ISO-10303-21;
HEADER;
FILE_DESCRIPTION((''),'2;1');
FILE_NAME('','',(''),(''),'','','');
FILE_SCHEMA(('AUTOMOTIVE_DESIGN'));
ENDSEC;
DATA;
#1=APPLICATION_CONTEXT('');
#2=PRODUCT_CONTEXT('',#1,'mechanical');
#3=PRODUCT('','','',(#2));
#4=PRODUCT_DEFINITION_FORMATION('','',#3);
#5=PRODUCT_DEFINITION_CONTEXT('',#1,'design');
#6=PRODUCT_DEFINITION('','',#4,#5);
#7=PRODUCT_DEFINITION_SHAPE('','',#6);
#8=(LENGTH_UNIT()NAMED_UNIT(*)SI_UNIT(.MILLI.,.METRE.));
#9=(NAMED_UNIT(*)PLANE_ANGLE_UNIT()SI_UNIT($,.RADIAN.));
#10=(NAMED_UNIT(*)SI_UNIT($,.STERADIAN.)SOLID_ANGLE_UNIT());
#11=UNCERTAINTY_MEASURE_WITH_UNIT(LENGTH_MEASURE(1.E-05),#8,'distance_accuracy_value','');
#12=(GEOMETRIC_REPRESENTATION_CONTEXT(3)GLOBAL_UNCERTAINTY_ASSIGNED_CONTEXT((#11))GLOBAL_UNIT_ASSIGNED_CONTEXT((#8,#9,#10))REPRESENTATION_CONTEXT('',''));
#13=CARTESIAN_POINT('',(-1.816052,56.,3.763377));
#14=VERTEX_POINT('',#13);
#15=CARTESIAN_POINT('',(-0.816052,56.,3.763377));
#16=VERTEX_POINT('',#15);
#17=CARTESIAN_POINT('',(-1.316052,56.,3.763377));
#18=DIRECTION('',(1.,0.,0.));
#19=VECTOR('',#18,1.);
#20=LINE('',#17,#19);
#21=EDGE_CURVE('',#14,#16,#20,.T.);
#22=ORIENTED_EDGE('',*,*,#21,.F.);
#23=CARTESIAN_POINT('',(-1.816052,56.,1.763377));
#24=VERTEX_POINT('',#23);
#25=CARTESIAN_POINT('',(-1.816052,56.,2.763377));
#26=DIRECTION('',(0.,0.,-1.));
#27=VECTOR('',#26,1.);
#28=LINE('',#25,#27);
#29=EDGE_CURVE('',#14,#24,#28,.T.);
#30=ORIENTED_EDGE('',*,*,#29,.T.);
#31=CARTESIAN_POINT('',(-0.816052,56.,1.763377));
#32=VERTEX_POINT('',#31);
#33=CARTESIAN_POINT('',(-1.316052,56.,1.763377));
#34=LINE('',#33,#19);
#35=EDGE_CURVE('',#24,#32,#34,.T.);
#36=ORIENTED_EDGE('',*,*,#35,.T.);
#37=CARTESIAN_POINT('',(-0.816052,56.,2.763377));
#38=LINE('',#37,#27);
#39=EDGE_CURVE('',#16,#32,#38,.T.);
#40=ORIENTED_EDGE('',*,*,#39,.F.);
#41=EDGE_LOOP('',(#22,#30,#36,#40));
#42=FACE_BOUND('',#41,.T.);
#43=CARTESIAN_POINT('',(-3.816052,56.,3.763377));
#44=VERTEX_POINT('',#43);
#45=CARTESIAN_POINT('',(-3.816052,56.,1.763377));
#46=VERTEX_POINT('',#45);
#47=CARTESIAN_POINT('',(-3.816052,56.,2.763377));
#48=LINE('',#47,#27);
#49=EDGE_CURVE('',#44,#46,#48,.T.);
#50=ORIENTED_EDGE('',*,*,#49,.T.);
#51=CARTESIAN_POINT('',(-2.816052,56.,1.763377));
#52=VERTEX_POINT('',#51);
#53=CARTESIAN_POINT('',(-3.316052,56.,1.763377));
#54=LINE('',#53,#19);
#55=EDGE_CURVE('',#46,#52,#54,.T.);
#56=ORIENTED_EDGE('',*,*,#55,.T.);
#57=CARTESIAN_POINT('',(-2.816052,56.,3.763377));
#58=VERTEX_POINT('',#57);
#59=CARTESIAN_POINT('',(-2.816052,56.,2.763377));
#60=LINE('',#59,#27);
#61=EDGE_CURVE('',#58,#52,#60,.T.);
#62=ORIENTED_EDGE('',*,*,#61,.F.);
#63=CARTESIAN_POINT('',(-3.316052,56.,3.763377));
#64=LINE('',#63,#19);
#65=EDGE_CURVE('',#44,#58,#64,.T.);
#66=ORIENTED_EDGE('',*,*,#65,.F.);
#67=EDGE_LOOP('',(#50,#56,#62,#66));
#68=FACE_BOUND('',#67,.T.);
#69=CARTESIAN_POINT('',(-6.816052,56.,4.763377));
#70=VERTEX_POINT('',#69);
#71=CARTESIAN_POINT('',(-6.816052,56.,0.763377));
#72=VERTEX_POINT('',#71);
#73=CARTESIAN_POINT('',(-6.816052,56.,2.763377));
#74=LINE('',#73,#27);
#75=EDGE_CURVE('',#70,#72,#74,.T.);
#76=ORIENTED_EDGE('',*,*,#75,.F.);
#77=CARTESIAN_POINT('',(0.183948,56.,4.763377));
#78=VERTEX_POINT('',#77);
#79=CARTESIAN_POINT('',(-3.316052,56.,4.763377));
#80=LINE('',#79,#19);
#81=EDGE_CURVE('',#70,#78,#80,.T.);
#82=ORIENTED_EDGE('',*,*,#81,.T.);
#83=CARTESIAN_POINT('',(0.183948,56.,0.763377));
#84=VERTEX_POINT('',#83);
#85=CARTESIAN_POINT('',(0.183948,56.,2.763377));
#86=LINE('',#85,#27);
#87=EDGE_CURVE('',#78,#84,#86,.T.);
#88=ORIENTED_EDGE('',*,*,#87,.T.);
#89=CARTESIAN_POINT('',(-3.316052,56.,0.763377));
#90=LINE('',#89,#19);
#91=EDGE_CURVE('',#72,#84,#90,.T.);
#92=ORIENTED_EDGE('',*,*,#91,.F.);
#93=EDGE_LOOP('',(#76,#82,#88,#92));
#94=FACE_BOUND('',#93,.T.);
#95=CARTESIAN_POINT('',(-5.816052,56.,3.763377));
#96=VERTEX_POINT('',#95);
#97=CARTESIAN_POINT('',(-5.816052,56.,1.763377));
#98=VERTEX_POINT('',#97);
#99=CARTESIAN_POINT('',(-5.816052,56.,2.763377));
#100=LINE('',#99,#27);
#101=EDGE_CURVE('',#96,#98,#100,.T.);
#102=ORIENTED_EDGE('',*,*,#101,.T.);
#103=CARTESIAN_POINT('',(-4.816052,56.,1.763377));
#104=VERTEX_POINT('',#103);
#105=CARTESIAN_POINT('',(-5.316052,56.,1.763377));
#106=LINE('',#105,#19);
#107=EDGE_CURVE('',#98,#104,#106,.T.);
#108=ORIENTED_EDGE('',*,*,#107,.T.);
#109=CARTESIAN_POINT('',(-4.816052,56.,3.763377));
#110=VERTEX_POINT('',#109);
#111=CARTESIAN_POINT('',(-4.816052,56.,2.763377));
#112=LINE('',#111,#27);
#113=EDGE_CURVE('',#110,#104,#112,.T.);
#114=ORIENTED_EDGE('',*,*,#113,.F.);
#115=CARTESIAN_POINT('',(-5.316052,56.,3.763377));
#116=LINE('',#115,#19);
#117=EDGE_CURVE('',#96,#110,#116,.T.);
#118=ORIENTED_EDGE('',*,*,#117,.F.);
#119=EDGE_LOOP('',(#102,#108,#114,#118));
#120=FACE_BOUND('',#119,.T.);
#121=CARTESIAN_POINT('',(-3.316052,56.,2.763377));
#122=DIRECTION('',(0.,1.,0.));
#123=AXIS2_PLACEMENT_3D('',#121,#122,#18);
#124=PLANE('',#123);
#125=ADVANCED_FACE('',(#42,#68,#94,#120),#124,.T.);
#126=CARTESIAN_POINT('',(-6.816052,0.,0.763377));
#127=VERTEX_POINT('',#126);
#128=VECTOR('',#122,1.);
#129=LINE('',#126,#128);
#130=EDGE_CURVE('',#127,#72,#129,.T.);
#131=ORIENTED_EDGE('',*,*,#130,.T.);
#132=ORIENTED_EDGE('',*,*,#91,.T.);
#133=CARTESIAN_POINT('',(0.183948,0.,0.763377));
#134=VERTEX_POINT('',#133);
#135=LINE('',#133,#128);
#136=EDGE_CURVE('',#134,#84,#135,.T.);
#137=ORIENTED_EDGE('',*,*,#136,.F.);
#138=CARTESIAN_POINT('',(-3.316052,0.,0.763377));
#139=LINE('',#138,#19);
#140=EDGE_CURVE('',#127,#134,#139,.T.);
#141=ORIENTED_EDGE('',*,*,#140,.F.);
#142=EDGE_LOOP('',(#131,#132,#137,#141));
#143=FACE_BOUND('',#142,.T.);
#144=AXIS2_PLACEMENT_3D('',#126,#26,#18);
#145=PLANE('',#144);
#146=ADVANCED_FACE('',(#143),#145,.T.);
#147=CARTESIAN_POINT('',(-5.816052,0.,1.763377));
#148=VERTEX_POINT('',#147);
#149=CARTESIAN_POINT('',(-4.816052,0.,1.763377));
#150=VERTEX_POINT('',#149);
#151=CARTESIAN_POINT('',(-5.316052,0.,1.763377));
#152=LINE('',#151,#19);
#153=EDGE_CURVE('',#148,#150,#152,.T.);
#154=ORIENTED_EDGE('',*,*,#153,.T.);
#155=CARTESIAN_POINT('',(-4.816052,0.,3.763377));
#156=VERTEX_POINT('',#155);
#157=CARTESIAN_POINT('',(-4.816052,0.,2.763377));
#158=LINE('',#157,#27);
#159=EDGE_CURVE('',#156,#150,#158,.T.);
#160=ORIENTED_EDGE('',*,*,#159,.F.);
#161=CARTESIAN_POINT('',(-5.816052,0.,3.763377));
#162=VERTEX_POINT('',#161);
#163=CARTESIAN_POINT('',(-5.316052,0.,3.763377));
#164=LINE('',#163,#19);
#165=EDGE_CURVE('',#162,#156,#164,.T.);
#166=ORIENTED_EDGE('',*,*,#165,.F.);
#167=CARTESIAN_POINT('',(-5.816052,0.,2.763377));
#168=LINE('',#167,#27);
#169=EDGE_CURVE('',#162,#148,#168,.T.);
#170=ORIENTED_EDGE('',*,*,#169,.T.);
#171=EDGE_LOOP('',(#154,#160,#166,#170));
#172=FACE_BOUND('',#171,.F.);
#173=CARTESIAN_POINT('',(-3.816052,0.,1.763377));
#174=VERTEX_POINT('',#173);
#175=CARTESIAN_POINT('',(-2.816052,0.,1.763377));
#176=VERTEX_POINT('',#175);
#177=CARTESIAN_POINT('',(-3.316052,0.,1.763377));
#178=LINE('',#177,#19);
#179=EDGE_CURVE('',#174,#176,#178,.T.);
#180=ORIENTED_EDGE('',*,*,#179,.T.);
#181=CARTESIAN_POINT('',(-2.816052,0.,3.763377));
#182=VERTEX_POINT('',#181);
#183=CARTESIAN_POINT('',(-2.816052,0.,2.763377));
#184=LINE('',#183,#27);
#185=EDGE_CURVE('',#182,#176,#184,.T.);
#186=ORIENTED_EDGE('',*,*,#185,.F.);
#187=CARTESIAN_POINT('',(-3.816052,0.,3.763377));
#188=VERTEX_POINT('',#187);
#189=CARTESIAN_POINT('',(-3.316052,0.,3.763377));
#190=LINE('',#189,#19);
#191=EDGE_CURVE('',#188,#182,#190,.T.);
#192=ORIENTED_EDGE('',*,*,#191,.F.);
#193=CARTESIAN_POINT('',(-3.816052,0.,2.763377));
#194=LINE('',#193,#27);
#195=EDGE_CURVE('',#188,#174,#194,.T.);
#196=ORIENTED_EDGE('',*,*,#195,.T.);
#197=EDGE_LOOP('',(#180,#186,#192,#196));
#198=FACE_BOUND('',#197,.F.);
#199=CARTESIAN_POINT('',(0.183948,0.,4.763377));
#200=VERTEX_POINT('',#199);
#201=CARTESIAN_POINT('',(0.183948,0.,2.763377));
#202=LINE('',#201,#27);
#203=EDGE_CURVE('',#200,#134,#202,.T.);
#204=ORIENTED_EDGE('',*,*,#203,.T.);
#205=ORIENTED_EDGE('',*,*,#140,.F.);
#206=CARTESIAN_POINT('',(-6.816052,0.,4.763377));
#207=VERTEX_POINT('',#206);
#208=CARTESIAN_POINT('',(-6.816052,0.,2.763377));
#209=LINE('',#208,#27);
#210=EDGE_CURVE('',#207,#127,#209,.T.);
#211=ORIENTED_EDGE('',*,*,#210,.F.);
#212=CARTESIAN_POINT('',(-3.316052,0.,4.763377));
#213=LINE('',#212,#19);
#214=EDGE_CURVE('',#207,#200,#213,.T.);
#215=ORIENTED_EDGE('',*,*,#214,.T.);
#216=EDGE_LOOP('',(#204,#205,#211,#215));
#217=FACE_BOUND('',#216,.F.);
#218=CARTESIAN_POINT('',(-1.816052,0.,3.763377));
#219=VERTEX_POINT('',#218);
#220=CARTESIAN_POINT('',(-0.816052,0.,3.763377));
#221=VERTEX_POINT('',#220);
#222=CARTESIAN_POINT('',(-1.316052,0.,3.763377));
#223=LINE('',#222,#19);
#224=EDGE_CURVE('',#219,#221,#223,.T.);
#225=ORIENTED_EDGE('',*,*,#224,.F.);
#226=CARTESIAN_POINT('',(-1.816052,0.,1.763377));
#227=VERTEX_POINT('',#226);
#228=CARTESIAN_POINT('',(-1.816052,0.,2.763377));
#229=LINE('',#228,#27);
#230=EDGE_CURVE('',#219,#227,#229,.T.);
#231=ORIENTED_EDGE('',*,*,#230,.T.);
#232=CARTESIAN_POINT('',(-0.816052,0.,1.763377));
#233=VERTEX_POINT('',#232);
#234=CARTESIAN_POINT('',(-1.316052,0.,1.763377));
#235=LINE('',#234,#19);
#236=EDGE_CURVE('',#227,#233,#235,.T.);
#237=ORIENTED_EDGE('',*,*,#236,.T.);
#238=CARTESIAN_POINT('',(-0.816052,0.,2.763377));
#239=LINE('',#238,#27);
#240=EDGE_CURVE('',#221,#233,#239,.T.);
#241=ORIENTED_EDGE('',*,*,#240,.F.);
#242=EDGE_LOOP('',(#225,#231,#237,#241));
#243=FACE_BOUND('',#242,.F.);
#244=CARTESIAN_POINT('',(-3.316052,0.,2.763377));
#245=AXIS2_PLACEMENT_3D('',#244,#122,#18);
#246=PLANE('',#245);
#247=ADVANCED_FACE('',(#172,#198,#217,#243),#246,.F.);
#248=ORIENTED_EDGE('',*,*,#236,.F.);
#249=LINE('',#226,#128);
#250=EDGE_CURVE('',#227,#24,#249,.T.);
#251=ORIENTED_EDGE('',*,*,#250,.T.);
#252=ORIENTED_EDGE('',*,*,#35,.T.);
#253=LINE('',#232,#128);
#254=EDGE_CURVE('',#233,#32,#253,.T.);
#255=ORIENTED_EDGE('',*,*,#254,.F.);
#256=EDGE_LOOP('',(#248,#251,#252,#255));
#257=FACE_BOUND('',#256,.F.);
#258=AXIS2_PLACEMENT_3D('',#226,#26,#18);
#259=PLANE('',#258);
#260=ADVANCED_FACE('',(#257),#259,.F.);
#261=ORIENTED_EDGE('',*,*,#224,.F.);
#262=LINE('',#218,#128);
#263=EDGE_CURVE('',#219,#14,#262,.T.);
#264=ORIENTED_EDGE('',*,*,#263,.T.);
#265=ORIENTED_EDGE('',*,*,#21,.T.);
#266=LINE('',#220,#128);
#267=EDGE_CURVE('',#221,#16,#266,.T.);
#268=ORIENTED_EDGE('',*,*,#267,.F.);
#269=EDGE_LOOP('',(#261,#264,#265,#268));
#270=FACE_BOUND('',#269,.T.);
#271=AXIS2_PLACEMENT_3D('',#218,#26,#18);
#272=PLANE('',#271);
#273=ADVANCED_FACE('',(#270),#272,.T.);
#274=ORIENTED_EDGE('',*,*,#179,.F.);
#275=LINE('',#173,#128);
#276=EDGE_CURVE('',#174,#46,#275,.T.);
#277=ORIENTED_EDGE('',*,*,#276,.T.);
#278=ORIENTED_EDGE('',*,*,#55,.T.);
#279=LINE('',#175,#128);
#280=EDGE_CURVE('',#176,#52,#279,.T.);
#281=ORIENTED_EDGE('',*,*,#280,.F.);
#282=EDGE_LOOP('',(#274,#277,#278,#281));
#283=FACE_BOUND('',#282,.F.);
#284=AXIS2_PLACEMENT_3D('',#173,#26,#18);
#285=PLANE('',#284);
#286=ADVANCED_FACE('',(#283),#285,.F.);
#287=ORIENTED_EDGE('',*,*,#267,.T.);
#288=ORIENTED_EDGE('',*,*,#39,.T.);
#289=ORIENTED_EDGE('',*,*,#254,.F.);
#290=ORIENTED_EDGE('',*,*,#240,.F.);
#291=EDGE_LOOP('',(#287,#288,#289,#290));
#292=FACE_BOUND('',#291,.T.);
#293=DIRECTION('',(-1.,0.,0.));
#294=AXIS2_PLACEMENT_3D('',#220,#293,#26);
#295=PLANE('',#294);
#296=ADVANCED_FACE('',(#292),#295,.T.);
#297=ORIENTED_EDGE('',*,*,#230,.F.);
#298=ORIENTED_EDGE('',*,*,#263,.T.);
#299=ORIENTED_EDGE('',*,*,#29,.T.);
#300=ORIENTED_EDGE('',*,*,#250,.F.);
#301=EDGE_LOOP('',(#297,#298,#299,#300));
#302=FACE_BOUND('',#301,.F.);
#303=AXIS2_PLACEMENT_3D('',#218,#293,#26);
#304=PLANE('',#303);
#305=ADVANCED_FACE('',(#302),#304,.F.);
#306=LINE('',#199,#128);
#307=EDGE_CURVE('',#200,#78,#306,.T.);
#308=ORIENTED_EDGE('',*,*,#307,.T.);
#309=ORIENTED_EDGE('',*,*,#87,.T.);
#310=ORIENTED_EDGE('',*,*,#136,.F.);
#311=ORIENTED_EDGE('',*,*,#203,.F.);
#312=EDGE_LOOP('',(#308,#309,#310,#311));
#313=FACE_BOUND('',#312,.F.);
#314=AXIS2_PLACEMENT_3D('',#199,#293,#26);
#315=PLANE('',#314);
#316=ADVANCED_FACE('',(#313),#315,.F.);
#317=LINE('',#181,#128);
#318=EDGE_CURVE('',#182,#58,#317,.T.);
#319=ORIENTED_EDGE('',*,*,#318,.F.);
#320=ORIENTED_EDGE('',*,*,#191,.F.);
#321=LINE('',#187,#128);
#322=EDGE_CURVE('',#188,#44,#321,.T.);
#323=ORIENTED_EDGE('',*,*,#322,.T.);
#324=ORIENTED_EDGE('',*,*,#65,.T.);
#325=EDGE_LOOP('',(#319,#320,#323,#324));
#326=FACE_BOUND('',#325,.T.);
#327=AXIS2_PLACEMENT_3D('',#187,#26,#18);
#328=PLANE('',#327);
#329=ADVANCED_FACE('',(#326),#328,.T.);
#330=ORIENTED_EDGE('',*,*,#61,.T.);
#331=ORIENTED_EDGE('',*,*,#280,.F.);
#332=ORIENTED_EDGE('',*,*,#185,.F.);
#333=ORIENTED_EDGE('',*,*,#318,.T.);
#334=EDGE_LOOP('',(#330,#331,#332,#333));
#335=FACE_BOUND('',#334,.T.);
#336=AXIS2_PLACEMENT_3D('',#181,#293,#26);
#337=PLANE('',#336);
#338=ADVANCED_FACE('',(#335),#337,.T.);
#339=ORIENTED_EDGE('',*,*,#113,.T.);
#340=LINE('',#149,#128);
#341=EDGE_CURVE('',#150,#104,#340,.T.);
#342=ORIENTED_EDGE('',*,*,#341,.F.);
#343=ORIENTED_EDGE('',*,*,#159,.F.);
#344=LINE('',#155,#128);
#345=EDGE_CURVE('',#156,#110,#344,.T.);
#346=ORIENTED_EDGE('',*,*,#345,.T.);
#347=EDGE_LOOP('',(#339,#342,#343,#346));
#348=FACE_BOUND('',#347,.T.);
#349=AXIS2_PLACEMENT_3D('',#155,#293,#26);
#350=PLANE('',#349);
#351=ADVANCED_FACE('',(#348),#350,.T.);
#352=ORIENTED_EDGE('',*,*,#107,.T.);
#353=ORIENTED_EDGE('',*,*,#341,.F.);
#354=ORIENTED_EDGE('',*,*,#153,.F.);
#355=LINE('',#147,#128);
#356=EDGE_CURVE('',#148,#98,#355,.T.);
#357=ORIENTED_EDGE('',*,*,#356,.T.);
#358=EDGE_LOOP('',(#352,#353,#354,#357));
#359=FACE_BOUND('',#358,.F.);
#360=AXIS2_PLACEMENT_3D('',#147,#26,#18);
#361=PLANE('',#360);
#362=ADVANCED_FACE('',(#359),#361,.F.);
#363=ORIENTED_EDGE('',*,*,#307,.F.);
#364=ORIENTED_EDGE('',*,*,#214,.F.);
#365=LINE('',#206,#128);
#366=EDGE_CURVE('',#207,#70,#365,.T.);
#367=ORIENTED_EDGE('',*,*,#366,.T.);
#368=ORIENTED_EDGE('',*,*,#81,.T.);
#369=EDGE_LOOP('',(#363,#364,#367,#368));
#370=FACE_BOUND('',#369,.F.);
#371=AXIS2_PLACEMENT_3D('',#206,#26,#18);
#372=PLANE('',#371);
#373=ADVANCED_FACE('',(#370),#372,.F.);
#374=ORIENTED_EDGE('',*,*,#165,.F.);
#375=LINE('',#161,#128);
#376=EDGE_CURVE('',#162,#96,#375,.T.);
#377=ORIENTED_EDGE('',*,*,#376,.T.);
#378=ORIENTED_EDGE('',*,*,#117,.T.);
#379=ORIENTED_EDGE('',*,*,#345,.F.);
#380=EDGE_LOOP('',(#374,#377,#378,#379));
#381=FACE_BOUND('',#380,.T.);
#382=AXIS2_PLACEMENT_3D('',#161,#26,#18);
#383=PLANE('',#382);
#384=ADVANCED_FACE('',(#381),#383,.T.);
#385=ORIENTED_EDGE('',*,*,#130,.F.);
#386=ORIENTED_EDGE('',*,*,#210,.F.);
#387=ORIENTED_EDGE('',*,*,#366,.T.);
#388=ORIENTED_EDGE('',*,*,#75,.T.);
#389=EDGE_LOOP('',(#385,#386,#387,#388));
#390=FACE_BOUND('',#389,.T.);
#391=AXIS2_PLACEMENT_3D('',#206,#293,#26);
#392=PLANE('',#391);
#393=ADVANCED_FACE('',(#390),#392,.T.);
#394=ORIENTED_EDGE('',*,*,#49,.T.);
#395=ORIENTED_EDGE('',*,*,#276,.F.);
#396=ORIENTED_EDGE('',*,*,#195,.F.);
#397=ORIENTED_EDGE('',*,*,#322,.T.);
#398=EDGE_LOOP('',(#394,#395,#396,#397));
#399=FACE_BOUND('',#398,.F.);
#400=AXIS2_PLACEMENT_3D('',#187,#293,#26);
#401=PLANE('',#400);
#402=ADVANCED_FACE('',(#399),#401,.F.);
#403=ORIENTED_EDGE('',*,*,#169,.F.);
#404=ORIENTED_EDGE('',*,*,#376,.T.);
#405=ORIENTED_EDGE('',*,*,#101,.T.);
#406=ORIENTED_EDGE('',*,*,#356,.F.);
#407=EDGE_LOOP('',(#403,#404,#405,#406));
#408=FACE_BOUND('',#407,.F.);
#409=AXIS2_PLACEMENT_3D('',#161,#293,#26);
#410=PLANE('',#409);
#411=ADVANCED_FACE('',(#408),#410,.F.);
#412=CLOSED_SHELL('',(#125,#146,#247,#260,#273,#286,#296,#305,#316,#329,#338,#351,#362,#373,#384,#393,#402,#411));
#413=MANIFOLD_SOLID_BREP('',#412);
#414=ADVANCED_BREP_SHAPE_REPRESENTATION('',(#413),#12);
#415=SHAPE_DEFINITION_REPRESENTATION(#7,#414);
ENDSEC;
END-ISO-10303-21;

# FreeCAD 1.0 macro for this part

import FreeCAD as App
import Part
import Sketcher
from FreeCAD import Vector

doc = App.newDocument("Part")
body = doc.addObject("PartDesign::Body", "Body")

# Sketch on XZ plane
sketch1 = body.newObject("Sketcher::SketchObject", "Sketch")
sketch1.AttachmentSupport = (doc.getObject("XZ_Plane"), [""])
sketch1.MapMode = "FlatFace"
sketch1.addGeometry([
    Part.LineSegment(Vector(-6.816052, 0.763377, 0), Vector(-6.816052, 4.763377, 0)),  # 0
    Part.LineSegment(Vector(-6.816052, 4.763377, 0), Vector(0.183948, 4.763377, 0)),  # 1
    Part.LineSegment(Vector(0.183948, 4.763377, 0), Vector(0.183948, 0.763377, 0)),  # 2
    Part.LineSegment(Vector(0.183948, 0.763377, 0), Vector(-6.816052, 0.763377, 0)),  # 3
    Part.LineSegment(Vector(-4.816052, 3.763377, 0), Vector(-5.816052, 3.763377, 0)),  # 4
    Part.LineSegment(Vector(-5.816052, 3.763377, 0), Vector(-5.816052, 1.763377, 0)),  # 5
    Part.LineSegment(Vector(-5.816052, 1.763377, 0), Vector(-4.816052, 1.763377, 0)),  # 6
    Part.LineSegment(Vector(-4.816052, 1.763377, 0), Vector(-4.816052, 3.763377, 0)),  # 7
    Part.LineSegment(Vector(-2.816052, 3.763377, 0), Vector(-3.816052, 3.763377, 0)),  # 8
    Part.LineSegment(Vector(-3.816052, 3.763377, 0), Vector(-3.816052, 1.763377, 0)),  # 9
    Part.LineSegment(Vector(-3.816052, 1.763377, 0), Vector(-2.816052, 1.763377, 0)),  # 10
    Part.LineSegment(Vector(-2.816052, 1.763377, 0), Vector(-2.816052, 3.763377, 0)),  # 11
    Part.LineSegment(Vector(-0.816052, 3.763377, 0), Vector(-1.816052, 3.763377, 0)),  # 12
    Part.LineSegment(Vector(-1.816052, 3.763377, 0), Vector(-1.816052, 1.763377, 0)),  # 13
    Part.LineSegment(Vector(-1.816052, 1.763377, 0), Vector(-0.816052, 1.763377, 0)),  # 14
    Part.LineSegment(Vector(-0.816052, 1.763377, 0), Vector(-0.816052, 3.763377, 0)),  # 15
], False)
sketch1.addConstraint([
    Sketcher.Constraint("Coincident", 0, 2, 1, 1),
    Sketcher.Constraint("Coincident", 1, 2, 2, 1),
    Sketcher.Constraint("Coincident", 2, 2, 3, 1),
    Sketcher.Constraint("Coincident", 3, 2, 0, 1),
    Sketcher.Constraint("Coincident", 4, 2, 5, 1),
    Sketcher.Constraint("Coincident", 5, 2, 6, 1),
    Sketcher.Constraint("Coincident", 6, 2, 7, 1),
    Sketcher.Constraint("Coincident", 7, 2, 4, 1),
    Sketcher.Constraint("Coincident", 8, 2, 9, 1),
    Sketcher.Constraint("Coincident", 9, 2, 10, 1),
    Sketcher.Constraint("Coincident", 10, 2, 11, 1),
    Sketcher.Constraint("Coincident", 11, 2, 8, 1),
    Sketcher.Constraint("Coincident", 12, 2, 13, 1),
    Sketcher.Constraint("Coincident", 13, 2, 14, 1),
    Sketcher.Constraint("Coincident", 14, 2, 15, 1),
    Sketcher.Constraint("Coincident", 15, 2, 12, 1),
    Sketcher.Constraint("Vertical", 0),
    Sketcher.Constraint("Horizontal", 1),
    Sketcher.Constraint("Vertical", 2),
    Sketcher.Constraint("Horizontal", 3),
    Sketcher.Constraint("Horizontal", 4),
    Sketcher.Constraint("Vertical", 5),
    Sketcher.Constraint("Horizontal", 6),
    Sketcher.Constraint("Vertical", 7),
    Sketcher.Constraint("Horizontal", 8),
    Sketcher.Constraint("Vertical", 9),
    Sketcher.Constraint("Horizontal", 10),
    Sketcher.Constraint("Vertical", 11),
    Sketcher.Constraint("Horizontal", 12),
    Sketcher.Constraint("Vertical", 13),
    Sketcher.Constraint("Horizontal", 14),
    Sketcher.Constraint("Vertical", 15),
    Sketcher.Constraint("Horizontal", 7, 2, 8, 2),
    Sketcher.Constraint("Horizontal", 6, 2, 9, 2),
    Sketcher.Constraint("Horizontal", 11, 2, 12, 2),
    Sketcher.Constraint("Horizontal", 10, 2, 13, 2),
    Sketcher.Constraint("Equal", 6, 8),
    Sketcher.Constraint("Equal", 10, 12),
    Sketcher.Constraint("DistanceX", 1, 1, 1, 2, 7.0),
    Sketcher.Constraint("DistanceX", 4, 2, 4, 1, 1.0),
    Sketcher.Constraint("DistanceY", 0, 1, 0, 2, 4.0),
    Sketcher.Constraint("DistanceY", 5, 2, 5, 1, 2.0),
    Sketcher.Constraint("DistanceX", 0, 2, 4, 2, 1.0),
    Sketcher.Constraint("DistanceY", 4, 2, 0, 2, 1.0),
    Sketcher.Constraint("DistanceX", 7, 2, 8, 2, 1.0),
    Sketcher.Constraint("DistanceX", 11, 2, 12, 2, 1.0),
    Sketcher.Constraint("DistanceX", 0, 2, -1, 1, 6.816052),
    Sketcher.Constraint("DistanceY", -1, 1, 0, 2, 4.763377),
])
pad1 = body.newObject("PartDesign::Pad", "Pad")
pad1.Profile = sketch1
pad1.Length = 56
pad1.Reversed = True

doc.recompute()
